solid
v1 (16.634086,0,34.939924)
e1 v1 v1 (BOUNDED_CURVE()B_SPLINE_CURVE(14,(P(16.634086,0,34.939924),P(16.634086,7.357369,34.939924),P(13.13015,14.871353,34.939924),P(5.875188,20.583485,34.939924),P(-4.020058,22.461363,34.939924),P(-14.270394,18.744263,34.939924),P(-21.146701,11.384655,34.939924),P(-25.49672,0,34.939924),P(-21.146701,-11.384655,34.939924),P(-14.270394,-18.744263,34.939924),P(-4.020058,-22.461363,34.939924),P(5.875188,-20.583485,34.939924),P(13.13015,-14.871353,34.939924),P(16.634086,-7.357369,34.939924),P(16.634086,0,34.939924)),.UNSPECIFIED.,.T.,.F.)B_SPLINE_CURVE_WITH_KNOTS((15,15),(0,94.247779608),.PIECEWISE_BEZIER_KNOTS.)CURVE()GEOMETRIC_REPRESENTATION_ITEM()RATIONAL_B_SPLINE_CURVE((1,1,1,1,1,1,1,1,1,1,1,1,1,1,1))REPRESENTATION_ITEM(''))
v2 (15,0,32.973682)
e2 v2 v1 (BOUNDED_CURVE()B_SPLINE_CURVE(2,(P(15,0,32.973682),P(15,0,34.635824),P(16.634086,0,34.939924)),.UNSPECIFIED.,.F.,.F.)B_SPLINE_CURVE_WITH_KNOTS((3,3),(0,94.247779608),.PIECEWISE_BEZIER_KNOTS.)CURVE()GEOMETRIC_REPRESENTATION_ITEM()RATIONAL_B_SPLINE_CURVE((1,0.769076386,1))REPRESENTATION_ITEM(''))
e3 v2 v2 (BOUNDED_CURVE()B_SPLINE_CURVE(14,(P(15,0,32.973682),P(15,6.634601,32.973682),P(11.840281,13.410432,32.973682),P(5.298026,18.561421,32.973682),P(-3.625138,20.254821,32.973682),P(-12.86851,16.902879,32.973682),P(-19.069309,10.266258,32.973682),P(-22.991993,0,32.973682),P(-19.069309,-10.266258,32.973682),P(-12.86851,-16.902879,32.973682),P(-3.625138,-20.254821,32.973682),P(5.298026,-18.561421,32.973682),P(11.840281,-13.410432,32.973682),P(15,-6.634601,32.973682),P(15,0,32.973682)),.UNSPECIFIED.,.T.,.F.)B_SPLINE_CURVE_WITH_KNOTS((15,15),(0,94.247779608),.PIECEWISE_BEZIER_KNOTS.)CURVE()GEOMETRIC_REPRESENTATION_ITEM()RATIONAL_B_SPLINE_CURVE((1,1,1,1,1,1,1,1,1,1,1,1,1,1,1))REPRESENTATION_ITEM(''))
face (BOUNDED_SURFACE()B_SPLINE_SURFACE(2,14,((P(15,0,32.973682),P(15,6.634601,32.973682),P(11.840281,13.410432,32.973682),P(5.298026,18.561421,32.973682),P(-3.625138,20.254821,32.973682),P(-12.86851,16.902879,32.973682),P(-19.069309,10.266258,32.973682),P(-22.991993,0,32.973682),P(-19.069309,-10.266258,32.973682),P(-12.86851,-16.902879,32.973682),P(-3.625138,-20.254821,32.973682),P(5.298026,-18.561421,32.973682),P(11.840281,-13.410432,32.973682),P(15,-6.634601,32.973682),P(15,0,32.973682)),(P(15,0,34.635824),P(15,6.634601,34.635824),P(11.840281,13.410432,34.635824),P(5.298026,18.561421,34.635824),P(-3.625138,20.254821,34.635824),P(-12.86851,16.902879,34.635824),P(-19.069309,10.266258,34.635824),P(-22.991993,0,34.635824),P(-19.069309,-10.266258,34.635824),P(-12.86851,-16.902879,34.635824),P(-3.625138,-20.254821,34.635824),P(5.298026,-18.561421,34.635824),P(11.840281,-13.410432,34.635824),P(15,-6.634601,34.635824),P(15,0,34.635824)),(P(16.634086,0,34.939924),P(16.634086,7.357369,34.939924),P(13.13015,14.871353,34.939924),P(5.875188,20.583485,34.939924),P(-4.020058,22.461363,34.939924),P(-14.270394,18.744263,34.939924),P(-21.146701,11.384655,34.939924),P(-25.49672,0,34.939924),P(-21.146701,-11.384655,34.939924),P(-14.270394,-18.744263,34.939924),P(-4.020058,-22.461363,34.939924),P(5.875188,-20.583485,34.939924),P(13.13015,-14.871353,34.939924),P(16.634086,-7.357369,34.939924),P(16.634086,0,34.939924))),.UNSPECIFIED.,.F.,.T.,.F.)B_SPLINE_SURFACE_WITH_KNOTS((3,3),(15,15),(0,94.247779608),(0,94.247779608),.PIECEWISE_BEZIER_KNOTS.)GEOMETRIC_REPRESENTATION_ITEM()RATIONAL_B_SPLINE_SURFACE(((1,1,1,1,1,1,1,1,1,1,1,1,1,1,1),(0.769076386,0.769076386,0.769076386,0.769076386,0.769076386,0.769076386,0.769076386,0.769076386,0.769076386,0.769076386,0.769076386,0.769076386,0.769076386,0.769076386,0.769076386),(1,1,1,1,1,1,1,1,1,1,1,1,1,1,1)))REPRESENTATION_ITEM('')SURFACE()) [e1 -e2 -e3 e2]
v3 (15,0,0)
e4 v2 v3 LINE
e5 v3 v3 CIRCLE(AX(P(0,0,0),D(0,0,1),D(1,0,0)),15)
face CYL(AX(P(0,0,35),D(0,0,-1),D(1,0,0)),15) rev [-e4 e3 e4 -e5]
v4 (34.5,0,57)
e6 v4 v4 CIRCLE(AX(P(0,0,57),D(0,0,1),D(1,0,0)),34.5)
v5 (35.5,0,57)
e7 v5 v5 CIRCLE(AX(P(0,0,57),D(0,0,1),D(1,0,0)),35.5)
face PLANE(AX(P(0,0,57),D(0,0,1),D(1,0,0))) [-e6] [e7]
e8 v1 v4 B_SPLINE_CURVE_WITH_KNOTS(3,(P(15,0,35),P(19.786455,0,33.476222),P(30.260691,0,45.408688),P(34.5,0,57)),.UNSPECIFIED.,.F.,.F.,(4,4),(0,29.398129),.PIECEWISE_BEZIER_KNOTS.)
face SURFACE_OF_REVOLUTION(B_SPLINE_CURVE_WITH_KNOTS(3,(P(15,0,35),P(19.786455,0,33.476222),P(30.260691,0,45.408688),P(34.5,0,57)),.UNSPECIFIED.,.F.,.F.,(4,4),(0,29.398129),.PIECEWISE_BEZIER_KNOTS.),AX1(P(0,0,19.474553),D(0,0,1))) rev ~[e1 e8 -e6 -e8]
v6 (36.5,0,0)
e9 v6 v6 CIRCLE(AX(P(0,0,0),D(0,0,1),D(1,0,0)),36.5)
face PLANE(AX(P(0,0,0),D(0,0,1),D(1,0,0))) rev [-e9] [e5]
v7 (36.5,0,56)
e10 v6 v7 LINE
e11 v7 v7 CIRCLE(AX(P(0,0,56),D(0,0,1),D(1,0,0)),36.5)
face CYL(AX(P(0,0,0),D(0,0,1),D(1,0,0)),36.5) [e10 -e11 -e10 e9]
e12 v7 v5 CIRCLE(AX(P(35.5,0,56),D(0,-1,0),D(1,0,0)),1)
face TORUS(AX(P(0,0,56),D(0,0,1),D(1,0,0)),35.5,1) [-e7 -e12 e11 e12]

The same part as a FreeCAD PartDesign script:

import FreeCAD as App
import Part
import Sketcher
Q = App.Units.Quantity


def edges_at(feature, points):
    """Names of the edges that pass closest to the given points."""
    edges = feature.Shape.Edges
    near = lambda p: min(range(len(edges)), key=lambda i: edges[i].distToShape(Part.Vertex(*p))[0])
    return sorted({f"Edge{near(p) + 1}" for p in points})

doc = App.newDocument("Part")
body = doc.addObject("PartDesign::Body", "Body")

# Sketch on XZ plane
sketch1 = body.newObject("Sketcher::SketchObject", "Sketch")
sketch1.AttachmentSupport = (doc.getObject("XZ_Plane"), [""])
sketch1.MapMode = "FlatFace"
sketch1.addGeometry([
    Part.LineSegment(App.Vector(15, 35, 0), App.Vector(15, 0, 0)),  # 0
    Part.LineSegment(App.Vector(15, 0, 0), App.Vector(36.5, 0, 0)),  # 1
    Part.LineSegment(App.Vector(36.5, 0, 0), App.Vector(36.5, 57, 0)),  # 2
    Part.LineSegment(App.Vector(36.5, 57, 0), App.Vector(34.5, 57, 0)),  # 3
    Part.BSplineCurve([App.Vector(15, 35, 0), App.Vector(19.786455, 33.476222, 0), App.Vector(30.260691, 45.408688, 0), App.Vector(34.5, 57, 0)], [4, 4], [0, 29.398129], False, 3, [1, 1, 1, 1], False),  # 4
], False)
sketch1.addConstraint([
    Sketcher.Constraint("Block", 4),
    Sketcher.Constraint("Coincident", 0, 2, 1, 1),
    Sketcher.Constraint("Coincident", 1, 2, 2, 1),
    Sketcher.Constraint("Coincident", 2, 2, 3, 1),
    Sketcher.Constraint("Coincident", 3, 2, 4, 2),
    Sketcher.Constraint("Coincident", 4, 1, 0, 1),
    Sketcher.Constraint("Vertical", 0),
    Sketcher.Constraint("Horizontal", 1),
    Sketcher.Constraint("Vertical", 2),
    Sketcher.Constraint("Horizontal", 3),
    Sketcher.Constraint("PointOnObject", 0, 2, -1),
    Sketcher.Constraint("DistanceX", 3, 2, 3, 1, Q("2 mm")),
])
revolution = body.newObject("PartDesign::Revolution", "Revolution")
revolution.Profile = sketch1
revolution.ReferenceAxis = (sketch1, ["V_Axis"])
revolution.Angle = 360
doc.recompute()

fillet = body.newObject("PartDesign::Fillet", "Fillet")
fillet.Base = (revolution, edges_at(revolution, [(-15, 0, 35)]))
fillet.Radius = 2
doc.recompute()

fillet2 = body.newObject("PartDesign::Fillet", "Fillet001")
fillet2.Base = (fillet, edges_at(fillet, [(-36.5, 0, 57)]))
fillet2.Radius = 1

doc.recompute()
